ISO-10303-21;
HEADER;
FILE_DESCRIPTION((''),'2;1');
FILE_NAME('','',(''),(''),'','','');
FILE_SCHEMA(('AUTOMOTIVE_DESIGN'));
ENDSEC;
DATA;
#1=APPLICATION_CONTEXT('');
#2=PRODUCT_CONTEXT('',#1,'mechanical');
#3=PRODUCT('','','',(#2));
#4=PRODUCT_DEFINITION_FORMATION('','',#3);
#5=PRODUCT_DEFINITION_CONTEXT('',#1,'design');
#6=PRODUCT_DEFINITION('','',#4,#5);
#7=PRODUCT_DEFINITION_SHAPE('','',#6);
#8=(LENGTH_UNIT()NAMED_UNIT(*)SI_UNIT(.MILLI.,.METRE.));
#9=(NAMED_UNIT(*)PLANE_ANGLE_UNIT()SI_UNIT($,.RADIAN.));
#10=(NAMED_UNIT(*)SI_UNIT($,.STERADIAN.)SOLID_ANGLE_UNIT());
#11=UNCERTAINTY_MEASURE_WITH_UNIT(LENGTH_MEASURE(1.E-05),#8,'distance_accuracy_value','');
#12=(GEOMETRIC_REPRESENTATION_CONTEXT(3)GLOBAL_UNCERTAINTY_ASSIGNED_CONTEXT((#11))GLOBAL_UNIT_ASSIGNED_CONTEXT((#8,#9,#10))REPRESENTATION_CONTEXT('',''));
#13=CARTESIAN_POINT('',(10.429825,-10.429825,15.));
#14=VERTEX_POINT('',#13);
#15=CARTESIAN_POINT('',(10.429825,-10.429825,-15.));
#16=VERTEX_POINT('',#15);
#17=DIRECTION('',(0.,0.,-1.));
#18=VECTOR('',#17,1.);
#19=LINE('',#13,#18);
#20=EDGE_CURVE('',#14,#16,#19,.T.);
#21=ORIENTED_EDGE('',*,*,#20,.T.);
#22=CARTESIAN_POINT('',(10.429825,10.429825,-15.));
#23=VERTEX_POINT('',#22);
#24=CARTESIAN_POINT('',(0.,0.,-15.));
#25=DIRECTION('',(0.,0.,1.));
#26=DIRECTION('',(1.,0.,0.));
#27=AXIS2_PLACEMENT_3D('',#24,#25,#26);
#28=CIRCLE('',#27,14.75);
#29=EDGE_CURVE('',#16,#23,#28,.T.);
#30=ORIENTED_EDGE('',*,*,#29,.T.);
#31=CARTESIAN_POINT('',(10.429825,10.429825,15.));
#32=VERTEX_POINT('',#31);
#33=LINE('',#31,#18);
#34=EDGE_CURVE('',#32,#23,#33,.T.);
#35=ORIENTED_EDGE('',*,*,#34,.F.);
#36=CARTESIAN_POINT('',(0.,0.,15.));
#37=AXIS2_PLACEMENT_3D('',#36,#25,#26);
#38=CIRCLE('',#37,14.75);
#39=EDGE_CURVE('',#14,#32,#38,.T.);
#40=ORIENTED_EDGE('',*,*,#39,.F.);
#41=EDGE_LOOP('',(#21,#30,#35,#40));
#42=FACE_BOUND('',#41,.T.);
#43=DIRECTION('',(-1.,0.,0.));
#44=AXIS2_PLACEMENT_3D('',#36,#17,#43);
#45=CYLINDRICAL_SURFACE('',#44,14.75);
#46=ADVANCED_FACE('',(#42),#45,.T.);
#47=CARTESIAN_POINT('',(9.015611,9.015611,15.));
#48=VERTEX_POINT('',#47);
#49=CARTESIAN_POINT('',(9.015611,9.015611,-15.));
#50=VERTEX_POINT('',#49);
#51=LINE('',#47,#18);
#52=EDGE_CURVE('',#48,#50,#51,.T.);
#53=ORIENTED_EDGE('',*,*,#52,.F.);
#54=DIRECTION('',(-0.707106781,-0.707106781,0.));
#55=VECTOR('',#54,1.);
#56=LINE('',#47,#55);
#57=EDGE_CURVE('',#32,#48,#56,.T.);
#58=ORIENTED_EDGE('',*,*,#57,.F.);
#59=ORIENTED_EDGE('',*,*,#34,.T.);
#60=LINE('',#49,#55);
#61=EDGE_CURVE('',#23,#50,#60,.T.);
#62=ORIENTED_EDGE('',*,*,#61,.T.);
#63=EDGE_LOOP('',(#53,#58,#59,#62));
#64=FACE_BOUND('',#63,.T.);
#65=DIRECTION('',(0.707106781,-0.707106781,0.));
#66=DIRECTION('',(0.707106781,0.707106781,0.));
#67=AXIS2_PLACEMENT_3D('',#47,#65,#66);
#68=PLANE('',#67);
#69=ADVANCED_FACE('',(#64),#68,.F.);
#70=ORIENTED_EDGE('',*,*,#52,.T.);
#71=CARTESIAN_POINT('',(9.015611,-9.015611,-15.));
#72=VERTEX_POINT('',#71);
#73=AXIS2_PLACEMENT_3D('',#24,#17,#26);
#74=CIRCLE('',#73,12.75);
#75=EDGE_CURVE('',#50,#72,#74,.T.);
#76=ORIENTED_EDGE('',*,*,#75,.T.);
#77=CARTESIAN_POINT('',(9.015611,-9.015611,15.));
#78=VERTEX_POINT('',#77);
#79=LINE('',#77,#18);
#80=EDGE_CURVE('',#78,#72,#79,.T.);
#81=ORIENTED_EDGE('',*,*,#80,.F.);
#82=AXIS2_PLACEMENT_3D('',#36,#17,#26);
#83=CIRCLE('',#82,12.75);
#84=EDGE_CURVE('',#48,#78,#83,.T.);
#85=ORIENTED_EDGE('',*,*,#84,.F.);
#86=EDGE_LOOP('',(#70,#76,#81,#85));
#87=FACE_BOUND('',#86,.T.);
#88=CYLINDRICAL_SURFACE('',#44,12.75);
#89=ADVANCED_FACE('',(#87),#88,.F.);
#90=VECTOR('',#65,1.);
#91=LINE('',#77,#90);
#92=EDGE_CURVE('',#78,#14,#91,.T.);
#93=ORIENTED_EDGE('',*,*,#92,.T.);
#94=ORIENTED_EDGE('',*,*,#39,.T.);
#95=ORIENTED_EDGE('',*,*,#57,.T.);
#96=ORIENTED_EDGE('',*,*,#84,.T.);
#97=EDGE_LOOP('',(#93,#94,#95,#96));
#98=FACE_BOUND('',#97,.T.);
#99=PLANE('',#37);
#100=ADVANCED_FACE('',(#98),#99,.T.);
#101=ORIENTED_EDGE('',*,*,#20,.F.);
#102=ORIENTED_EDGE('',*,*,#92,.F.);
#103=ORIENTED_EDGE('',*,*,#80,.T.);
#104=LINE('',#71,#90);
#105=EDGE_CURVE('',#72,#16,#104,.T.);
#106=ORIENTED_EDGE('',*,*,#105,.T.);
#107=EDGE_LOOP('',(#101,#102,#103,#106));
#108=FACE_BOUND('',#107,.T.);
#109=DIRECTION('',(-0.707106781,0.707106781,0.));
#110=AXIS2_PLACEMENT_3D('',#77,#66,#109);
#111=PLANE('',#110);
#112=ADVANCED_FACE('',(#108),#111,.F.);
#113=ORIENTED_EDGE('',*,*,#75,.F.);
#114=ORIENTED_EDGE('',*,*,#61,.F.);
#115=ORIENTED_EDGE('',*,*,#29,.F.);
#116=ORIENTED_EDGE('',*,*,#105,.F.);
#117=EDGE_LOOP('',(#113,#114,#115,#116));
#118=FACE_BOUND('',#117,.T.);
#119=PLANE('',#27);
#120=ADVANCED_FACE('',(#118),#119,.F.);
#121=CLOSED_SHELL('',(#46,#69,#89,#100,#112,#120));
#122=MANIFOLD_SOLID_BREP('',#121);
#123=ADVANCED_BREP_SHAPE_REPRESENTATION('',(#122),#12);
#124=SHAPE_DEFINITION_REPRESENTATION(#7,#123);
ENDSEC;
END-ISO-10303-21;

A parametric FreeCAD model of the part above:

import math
import FreeCAD as App
import Part
import Sketcher

V = App.Vector
Q = App.Units.Quantity

doc = App.newDocument("Part")
body = doc.addObject("PartDesign::Body", "Body")

sketch1 = body.newObject("Sketcher::SketchObject", "Sketch")
sketch1.AttachmentSupport = (doc.getObject("XY_Plane"), [""])
sketch1.MapMode = "FlatFace"
sketch1.addGeometry([
    Part.LineSegment(V(10.4, 10.4, 0), V(9, 9, 0)),
    Part.ArcOfCircle(Part.Circle(V(0, 0, 0), V(0, 0, 1), 12.7), math.radians(-45), math.radians(45)),
    Part.LineSegment(V(9, -9, 0), V(10.4, -10.4, 0)),
    Part.ArcOfCircle(Part.Circle(V(0, 0, 0), V(0, 0, 1), 14.8), math.radians(-45), math.radians(45)),
], False)
sketch1.addConstraint([
    Sketcher.Constraint("Coincident", 0, 2, 1, 2),
    Sketcher.Constraint("Coincident", 1, 1, 2, 1),
    Sketcher.Constraint("Coincident", 2, 2, 3, 1),
    Sketcher.Constraint("Coincident", 3, 2, 0, 1),
    Sketcher.Constraint("Coincident", 1, 3, -1, 1),
    Sketcher.Constraint("Coincident", 3, 3, -1, 1),
    Sketcher.Constraint("Perpendicular", 0, 2),
    Sketcher.Constraint("Vertical", 0, 2, 1, 1),
    Sketcher.Constraint("Vertical", 2, 2, 3, 2),
    Sketcher.Constraint("Radius", 1, Q("12.75 mm")),
    Sketcher.Constraint("Radius", 3, Q("14.75 mm")),
    Sketcher.Constraint("DistanceX", -1, 1, 0, 2, Q("9.015611 mm")),
])
pad1 = body.newObject("PartDesign::Pad", "Pad")
pad1.Profile = sketch1
pad1.Length = 30
pad1.Midplane = True

doc.recompute()
